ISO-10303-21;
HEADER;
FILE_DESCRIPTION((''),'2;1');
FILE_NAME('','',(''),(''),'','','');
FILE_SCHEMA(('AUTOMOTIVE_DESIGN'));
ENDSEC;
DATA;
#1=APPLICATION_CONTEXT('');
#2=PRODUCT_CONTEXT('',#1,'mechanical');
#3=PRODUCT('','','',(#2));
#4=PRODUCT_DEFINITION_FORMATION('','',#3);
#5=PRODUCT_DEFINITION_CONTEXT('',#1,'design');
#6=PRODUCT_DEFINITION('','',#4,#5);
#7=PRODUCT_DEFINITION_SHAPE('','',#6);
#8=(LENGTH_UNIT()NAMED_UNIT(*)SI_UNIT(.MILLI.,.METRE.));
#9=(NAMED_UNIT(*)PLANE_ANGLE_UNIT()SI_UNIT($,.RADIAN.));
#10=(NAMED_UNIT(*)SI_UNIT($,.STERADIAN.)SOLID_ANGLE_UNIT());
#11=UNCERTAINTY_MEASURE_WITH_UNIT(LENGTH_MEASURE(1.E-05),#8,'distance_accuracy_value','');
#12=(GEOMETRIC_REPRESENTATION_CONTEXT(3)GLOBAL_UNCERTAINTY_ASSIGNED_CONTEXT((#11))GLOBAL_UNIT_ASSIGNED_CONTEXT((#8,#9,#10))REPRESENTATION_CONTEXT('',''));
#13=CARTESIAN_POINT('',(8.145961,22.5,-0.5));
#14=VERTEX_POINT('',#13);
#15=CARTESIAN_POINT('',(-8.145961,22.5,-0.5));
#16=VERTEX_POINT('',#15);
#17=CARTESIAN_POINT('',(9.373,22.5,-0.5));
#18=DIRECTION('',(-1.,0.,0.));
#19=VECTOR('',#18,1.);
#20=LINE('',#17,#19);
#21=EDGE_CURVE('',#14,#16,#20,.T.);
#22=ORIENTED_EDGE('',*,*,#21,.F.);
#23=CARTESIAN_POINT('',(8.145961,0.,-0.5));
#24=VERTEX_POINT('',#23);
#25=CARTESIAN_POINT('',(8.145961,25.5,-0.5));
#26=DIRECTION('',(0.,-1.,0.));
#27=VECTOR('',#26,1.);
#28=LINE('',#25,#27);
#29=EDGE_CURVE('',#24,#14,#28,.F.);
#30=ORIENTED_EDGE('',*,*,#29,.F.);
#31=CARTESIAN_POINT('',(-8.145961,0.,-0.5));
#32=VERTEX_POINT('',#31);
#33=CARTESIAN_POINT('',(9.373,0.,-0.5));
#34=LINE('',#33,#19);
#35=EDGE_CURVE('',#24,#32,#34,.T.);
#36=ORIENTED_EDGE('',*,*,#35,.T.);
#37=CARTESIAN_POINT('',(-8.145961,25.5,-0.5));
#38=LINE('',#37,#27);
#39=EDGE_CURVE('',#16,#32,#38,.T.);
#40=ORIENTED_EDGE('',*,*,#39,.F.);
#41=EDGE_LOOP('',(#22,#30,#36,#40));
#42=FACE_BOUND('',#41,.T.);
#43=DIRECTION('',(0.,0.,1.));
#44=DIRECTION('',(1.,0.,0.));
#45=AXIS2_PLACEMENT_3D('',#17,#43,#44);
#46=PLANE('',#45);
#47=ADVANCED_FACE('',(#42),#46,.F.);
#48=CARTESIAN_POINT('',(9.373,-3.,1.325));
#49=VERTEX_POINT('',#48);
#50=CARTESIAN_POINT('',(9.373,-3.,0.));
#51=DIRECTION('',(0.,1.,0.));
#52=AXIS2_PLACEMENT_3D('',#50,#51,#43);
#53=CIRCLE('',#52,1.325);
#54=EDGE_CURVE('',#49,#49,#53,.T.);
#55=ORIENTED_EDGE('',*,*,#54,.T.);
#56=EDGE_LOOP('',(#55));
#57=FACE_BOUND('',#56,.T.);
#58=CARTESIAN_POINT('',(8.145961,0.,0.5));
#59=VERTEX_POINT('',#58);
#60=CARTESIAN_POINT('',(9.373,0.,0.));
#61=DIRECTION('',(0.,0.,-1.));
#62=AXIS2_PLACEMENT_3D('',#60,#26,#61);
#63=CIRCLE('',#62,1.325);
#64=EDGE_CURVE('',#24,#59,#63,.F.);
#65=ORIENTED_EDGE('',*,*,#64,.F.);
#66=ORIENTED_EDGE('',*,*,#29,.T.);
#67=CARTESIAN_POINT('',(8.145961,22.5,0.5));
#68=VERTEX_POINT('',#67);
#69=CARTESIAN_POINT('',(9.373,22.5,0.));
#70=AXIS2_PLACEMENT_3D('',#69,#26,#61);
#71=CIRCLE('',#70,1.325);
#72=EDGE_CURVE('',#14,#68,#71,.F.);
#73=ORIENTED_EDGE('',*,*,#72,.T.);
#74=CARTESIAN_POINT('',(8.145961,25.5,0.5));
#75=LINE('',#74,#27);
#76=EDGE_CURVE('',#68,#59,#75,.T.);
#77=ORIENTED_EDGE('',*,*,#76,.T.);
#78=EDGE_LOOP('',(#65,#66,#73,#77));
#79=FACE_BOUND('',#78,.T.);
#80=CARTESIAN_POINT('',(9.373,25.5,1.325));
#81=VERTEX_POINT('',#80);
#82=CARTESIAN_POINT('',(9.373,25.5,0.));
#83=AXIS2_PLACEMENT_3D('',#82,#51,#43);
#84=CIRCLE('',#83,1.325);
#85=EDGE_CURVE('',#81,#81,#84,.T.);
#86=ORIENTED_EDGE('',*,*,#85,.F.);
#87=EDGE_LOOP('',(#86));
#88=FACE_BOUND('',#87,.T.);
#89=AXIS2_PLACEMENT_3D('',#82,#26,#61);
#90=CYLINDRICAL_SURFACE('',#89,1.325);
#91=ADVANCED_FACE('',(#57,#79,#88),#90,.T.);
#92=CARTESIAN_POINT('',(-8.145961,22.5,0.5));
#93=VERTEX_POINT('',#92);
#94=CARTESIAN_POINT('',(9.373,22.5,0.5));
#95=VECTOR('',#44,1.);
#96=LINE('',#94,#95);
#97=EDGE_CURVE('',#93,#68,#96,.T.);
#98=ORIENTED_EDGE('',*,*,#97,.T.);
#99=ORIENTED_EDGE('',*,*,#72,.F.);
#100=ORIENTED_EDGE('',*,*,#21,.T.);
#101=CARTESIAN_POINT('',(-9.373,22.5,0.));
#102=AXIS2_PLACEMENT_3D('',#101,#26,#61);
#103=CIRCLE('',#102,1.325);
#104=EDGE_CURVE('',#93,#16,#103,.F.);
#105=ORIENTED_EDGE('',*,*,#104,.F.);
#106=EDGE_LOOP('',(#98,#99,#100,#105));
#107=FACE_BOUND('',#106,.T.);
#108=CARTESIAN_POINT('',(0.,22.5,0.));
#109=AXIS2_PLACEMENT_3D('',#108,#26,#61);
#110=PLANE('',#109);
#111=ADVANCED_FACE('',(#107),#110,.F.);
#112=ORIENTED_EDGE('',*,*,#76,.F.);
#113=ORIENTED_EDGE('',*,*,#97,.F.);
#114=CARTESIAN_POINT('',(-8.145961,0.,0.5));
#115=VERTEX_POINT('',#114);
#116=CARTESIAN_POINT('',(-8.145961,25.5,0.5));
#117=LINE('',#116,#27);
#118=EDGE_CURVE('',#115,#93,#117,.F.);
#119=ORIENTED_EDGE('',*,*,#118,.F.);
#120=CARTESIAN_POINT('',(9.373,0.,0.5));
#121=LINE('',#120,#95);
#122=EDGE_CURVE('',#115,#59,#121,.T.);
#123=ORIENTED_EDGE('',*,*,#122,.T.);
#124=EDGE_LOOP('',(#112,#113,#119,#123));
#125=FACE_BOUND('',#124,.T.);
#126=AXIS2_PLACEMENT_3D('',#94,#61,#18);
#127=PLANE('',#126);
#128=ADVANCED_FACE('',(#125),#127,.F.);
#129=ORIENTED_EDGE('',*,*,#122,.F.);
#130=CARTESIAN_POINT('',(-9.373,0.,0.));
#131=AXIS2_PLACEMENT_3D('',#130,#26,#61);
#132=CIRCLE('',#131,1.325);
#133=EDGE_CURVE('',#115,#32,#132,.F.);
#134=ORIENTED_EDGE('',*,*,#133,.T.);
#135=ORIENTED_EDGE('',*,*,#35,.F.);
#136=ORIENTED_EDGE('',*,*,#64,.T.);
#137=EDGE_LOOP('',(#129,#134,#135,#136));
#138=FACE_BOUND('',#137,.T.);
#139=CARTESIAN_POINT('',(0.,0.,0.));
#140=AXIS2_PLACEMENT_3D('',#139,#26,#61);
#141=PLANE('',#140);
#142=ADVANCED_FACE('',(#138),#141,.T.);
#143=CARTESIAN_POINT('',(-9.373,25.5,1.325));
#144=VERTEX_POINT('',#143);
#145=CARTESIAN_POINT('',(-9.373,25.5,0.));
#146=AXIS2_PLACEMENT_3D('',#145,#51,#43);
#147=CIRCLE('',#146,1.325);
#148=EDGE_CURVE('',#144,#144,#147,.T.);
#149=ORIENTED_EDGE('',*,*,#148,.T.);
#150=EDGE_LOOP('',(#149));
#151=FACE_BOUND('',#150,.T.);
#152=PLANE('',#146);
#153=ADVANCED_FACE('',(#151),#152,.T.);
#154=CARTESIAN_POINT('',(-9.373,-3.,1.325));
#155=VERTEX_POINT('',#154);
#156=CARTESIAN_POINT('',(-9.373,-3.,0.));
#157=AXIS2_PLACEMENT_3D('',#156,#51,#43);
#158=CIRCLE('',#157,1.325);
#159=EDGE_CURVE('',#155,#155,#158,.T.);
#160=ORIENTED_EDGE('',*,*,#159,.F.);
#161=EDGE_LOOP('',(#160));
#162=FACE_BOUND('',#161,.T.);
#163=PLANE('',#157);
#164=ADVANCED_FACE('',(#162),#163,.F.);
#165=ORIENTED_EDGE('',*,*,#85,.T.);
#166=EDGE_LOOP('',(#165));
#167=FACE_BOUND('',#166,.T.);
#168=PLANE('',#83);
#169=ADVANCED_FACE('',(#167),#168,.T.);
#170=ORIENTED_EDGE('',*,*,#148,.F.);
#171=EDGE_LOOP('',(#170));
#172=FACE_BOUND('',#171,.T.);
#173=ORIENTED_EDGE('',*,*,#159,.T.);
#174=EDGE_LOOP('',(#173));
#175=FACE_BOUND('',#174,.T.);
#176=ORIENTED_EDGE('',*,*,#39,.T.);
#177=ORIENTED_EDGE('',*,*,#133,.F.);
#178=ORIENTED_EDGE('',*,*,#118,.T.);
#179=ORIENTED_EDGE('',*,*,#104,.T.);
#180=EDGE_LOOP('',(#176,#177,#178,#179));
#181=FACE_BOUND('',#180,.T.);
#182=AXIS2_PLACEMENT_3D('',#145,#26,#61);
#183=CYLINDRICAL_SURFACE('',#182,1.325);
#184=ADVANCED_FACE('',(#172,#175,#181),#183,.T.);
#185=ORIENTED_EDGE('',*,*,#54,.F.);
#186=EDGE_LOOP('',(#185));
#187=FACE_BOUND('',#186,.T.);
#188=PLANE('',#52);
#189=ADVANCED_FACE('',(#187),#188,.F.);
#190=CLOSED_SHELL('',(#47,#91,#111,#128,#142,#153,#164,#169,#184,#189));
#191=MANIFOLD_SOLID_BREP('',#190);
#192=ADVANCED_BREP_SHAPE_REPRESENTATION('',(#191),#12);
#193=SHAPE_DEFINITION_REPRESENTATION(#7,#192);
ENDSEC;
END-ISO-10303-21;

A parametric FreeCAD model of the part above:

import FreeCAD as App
import Part
import Sketcher
Q = App.Units.Quantity

doc = App.newDocument("Part")
params = doc.addObject("Spreadsheet::Sheet", "Params")
for row, (alias, value) in enumerate([
    ("sketch1_height", "1 mm"),
    ("pad1_length", "22.5 mm"),
    ("sketch2_diameter", "2.65 mm"),
    ("pad2_length", "28.5 mm"),
], start=1):
    params.set(f"A{row}", alias)
    params.set(f"B{row}", "=" + value)
    params.setAlias(f"B{row}", alias)

body = doc.addObject("PartDesign::Body", "Body")

sketch1 = body.newObject("Sketcher::SketchObject", "Sketch")
sketch1.AttachmentSupport = (doc.getObject("XZ_Plane"), [""])
sketch1.MapMode = "FlatFace"
sketch1.addGeometry(Part.LineSegment(App.Vector(-9.4, -0.5, 0), App.Vector(-9.4, 0.5, 0)), False)
sketch1.addGeometry(Part.LineSegment(App.Vector(-9.4, 0.5, 0), App.Vector(9.4, 0.5, 0)), False)
sketch1.addGeometry(Part.LineSegment(App.Vector(9.4, 0.5, 0), App.Vector(9.4, -0.5, 0)), False)
sketch1.addGeometry(Part.LineSegment(App.Vector(9.4, -0.5, 0), App.Vector(-9.4, -0.5, 0)), False)
sketch1.addConstraint(Sketcher.Constraint("Coincident", 0, 2, 1, 1))
sketch1.addConstraint(Sketcher.Constraint("Coincident", 1, 2, 2, 1))
sketch1.addConstraint(Sketcher.Constraint("Coincident", 2, 2, 3, 1))
sketch1.addConstraint(Sketcher.Constraint("Coincident", 3, 2, 0, 1))
sketch1.addConstraint(Sketcher.Constraint("Vertical", 0))
sketch1.addConstraint(Sketcher.Constraint("Horizontal", 1))
sketch1.addConstraint(Sketcher.Constraint("Vertical", 2))
sketch1.addConstraint(Sketcher.Constraint("Horizontal", 3))
sketch1.addConstraint(Sketcher.Constraint("Symmetric", 0, 2, 2, 2, -1, 1))
sketch1.addConstraint(Sketcher.Constraint("DistanceY", 0, 1, 0, 2, Q("1 mm")))
sketch1.addConstraint(Sketcher.Constraint("DistanceX", 1, 1, 1, 2, Q("18.746 mm")))
sketch1.setExpression("Constraints[9]", "Params.sketch1_height")
pad1 = body.newObject("PartDesign::Pad", "Pad")
pad1.Profile = sketch1
pad1.setExpression("Length", "Params.pad1_length")
pad1.Reversed = True

sketch2 = body.newObject("Sketcher::SketchObject", "Sketch001")
sketch2.AttachmentSupport = (doc.getObject("XZ_Plane"), [""])
sketch2.MapMode = "FlatFace"
sketch2.AttachmentOffset = App.Placement(App.Vector(0, 0, -11.25), App.Rotation())
sketch2.addGeometry(Part.Circle(App.Vector(-9.4, 0, 0), App.Vector(0, 0, 1), 1.3), False)
sketch2.addGeometry(Part.Circle(App.Vector(9.4, 0, 0), App.Vector(0, 0, 1), 1.3), False)
sketch2.addConstraint(Sketcher.Constraint("Equal", 0, 1))
sketch2.addConstraint(Sketcher.Constraint("Symmetric", 0, 3, 1, 3, -1, 1))
sketch2.addConstraint(Sketcher.Constraint("PointOnObject", 0, 3, -1))
sketch2.addConstraint(Sketcher.Constraint("Diameter", 0, Q("2.65 mm")))
sketch2.addConstraint(Sketcher.Constraint("DistanceX", 0, 3, -1, 1, Q("9.373 mm")))
sketch2.setExpression("Constraints[3]", "Params.sketch2_diameter")
pad2 = body.newObject("PartDesign::Pad", "Pad001")
pad2.Profile = sketch2
pad2.setExpression("Length", "Params.pad2_length")
pad2.Midplane = True

doc.recompute()
